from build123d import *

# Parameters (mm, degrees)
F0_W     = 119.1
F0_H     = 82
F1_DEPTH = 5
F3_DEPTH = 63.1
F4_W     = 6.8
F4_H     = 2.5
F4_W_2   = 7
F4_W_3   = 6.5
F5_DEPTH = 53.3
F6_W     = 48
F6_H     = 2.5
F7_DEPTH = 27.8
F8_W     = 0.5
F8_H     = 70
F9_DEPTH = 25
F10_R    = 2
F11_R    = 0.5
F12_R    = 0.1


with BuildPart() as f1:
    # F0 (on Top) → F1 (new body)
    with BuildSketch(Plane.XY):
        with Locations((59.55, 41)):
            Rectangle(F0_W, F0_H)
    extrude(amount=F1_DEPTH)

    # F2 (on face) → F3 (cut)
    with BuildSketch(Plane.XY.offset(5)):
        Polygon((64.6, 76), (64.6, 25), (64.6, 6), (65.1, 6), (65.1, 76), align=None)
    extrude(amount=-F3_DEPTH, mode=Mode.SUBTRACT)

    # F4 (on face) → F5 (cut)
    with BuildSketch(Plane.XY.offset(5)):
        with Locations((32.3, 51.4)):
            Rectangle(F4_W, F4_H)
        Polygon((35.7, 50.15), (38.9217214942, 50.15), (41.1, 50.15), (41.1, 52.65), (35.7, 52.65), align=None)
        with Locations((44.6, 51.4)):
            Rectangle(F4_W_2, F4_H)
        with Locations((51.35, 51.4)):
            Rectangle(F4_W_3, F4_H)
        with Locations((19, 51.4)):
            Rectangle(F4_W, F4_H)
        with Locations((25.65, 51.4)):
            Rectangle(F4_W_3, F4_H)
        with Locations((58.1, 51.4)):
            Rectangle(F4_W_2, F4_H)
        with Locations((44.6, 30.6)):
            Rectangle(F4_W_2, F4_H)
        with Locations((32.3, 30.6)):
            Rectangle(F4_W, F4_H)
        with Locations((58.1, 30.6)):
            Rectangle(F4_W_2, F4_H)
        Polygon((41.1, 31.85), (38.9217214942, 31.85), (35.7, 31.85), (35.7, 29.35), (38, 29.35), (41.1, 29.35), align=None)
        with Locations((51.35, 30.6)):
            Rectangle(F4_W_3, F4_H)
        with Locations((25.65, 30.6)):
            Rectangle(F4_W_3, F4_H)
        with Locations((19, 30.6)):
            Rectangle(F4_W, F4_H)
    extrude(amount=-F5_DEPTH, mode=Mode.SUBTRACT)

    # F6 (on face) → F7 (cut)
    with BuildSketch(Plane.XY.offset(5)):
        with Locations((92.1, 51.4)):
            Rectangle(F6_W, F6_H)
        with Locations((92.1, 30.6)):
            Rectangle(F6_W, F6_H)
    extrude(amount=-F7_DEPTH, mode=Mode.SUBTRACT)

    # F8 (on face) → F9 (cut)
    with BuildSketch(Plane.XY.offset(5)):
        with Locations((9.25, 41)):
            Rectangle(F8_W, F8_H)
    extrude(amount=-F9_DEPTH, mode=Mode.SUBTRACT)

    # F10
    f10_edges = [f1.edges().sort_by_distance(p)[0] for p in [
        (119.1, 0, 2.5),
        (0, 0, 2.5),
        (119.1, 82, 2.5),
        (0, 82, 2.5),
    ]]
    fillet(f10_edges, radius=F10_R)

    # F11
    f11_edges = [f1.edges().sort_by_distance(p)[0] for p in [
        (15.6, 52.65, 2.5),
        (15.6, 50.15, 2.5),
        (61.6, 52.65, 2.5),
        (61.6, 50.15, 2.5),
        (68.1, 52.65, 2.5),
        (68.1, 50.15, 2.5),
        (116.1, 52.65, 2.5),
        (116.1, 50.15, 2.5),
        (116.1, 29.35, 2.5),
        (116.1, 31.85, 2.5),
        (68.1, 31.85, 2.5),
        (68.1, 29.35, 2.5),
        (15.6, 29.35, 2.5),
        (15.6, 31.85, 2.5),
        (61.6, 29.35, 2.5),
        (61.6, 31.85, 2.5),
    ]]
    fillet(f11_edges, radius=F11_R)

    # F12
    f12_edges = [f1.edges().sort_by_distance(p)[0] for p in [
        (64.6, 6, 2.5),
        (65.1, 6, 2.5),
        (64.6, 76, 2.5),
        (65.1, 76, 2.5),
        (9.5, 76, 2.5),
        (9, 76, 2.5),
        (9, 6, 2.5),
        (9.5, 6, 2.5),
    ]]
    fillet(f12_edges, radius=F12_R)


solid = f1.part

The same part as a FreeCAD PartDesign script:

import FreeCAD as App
import Part
import Sketcher
Q = App.Units.Quantity


def edges_at(feature, points):
    """Names of the edges that pass closest to the given points."""
    edges = feature.Shape.Edges
    near = lambda p: min(range(len(edges)), key=lambda i: edges[i].distToShape(Part.Vertex(*p))[0])
    return sorted({f"Edge{near(p) + 1}" for p in points})

doc = App.newDocument("Part")
body = doc.addObject("PartDesign::Body", "Body")

# Sketch on XY plane
sketch1 = body.newObject("Sketcher::SketchObject", "Sketch")
sketch1.AttachmentSupport = (doc.getObject("XY_Plane"), [""])
sketch1.MapMode = "FlatFace"
sketch1.addGeometry(Part.LineSegment(App.Vector(0, 82, 0), App.Vector(0, 0, 0)), False)
sketch1.addGeometry(Part.LineSegment(App.Vector(0, 0, 0), App.Vector(119.1, 0, 0)), False)
sketch1.addGeometry(Part.LineSegment(App.Vector(119.1, 0, 0), App.Vector(119.1, 82, 0)), False)
sketch1.addGeometry(Part.LineSegment(App.Vector(119.1, 82, 0), App.Vector(0, 82, 0)), False)
sketch1.addConstraint(Sketcher.Constraint("Coincident", 0, 2, 1, 1))
sketch1.addConstraint(Sketcher.Constraint("Coincident", 1, 2, 2, 1))
sketch1.addConstraint(Sketcher.Constraint("Coincident", 2, 2, 3, 1))
sketch1.addConstraint(Sketcher.Constraint("Coincident", 3, 2, 0, 1))
sketch1.addConstraint(Sketcher.Constraint("Vertical", 0))
sketch1.addConstraint(Sketcher.Constraint("Horizontal", 1))
sketch1.addConstraint(Sketcher.Constraint("Vertical", 2))
sketch1.addConstraint(Sketcher.Constraint("Horizontal", 3))
sketch1.addConstraint(Sketcher.Constraint("Coincident", 0, 2, -1, 1))
sketch1.addConstraint(Sketcher.Constraint("DistanceY", 0, 2, 0, 1, Q("82 mm")))
sketch1.addConstraint(Sketcher.Constraint("DistanceX", 1, 1, 1, 2, Q("119.1 mm")))
pad1 = body.newObject("PartDesign::Pad", "Pad")
pad1.Profile = sketch1
pad1.Length = 5

# Sketch on XY plane
sketch2 = body.newObject("Sketcher::SketchObject", "Sketch001")
sketch2.AttachmentSupport = (doc.getObject("XY_Plane"), [""])
sketch2.MapMode = "FlatFace"
sketch2.AttachmentOffset = App.Placement(App.Vector(0, 0, 5), App.Rotation())
sketch2.addGeometry(Part.LineSegment(App.Vector(64.6, 76, 0), App.Vector(64.6, 6, 0)), False)
sketch2.addGeometry(Part.LineSegment(App.Vector(64.6, 6, 0), App.Vector(65.1, 6, 0)), False)
sketch2.addGeometry(Part.LineSegment(App.Vector(65.1, 6, 0), App.Vector(65.1, 76, 0)), False)
sketch2.addGeometry(Part.LineSegment(App.Vector(65.1, 76, 0), App.Vector(64.6, 76, 0)), False)
sketch2.addConstraint(Sketcher.Constraint("Coincident", 0, 2, 1, 1))
sketch2.addConstraint(Sketcher.Constraint("Coincident", 1, 2, 2, 1))
sketch2.addConstraint(Sketcher.Constraint("Coincident", 2, 2, 3, 1))
sketch2.addConstraint(Sketcher.Constraint("Coincident", 3, 2, 0, 1))
sketch2.addConstraint(Sketcher.Constraint("Vertical", 0))
sketch2.addConstraint(Sketcher.Constraint("Horizontal", 1))
sketch2.addConstraint(Sketcher.Constraint("Vertical", 2))
sketch2.addConstraint(Sketcher.Constraint("Horizontal", 3))
sketch2.addConstraint(Sketcher.Constraint("DistanceY", 0, 2, 0, 1, Q("70 mm")))
sketch2.addConstraint(Sketcher.Constraint("DistanceX", 1, 1, 1, 2, Q("0.5 mm")))
sketch2.addConstraint(Sketcher.Constraint("DistanceY", -1, 1, 0, 2, Q("6 mm")))
sketch2.addConstraint(Sketcher.Constraint("DistanceX", -1, 1, 0, 2, Q("64.6 mm")))
pocket1 = body.newObject("PartDesign::Pocket", "Pocket")
pocket1.Profile = sketch2
pocket1.Length = 63.1

# Sketch on XY plane
sketch3 = body.newObject("Sketcher::SketchObject", "Sketch002")
sketch3.AttachmentSupport = (doc.getObject("XY_Plane"), [""])
sketch3.MapMode = "FlatFace"
sketch3.AttachmentOffset = App.Placement(App.Vector(0, 0, 5), App.Rotation())
sketch3.addGeometry(Part.LineSegment(App.Vector(15.6, 52.65, 0), App.Vector(15.6, 50.15, 0)), False)
sketch3.addGeometry(Part.LineSegment(App.Vector(15.6, 50.15, 0), App.Vector(61.6, 50.15, 0)), False)
sketch3.addGeometry(Part.LineSegment(App.Vector(61.6, 50.15, 0), App.Vector(61.6, 52.65, 0)), False)
sketch3.addGeometry(Part.LineSegment(App.Vector(61.6, 52.65, 0), App.Vector(15.6, 52.65, 0)), False)
sketch3.addGeometry(Part.LineSegment(App.Vector(61.6, 29.35, 0), App.Vector(61.6, 31.85, 0)), False)
sketch3.addGeometry(Part.LineSegment(App.Vector(61.6, 31.85, 0), App.Vector(15.6, 31.85, 0)), False)
sketch3.addGeometry(Part.LineSegment(App.Vector(15.6, 31.85, 0), App.Vector(15.6, 29.35, 0)), False)
sketch3.addGeometry(Part.LineSegment(App.Vector(15.6, 29.35, 0), App.Vector(61.6, 29.35, 0)), False)
sketch3.addConstraint(Sketcher.Constraint("Coincident", 0, 2, 1, 1))
sketch3.addConstraint(Sketcher.Constraint("Coincident", 1, 2, 2, 1))
sketch3.addConstraint(Sketcher.Constraint("Coincident", 2, 2, 3, 1))
sketch3.addConstraint(Sketcher.Constraint("Coincident", 3, 2, 0, 1))
sketch3.addConstraint(Sketcher.Constraint("Coincident", 4, 2, 5, 1))
sketch3.addConstraint(Sketcher.Constraint("Coincident", 5, 2, 6, 1))
sketch3.addConstraint(Sketcher.Constraint("Coincident", 6, 2, 7, 1))
sketch3.addConstraint(Sketcher.Constraint("Coincident", 7, 2, 4, 1))
sketch3.addConstraint(Sketcher.Constraint("Vertical", 0))
sketch3.addConstraint(Sketcher.Constraint("Horizontal", 1))
sketch3.addConstraint(Sketcher.Constraint("Vertical", 2))
sketch3.addConstraint(Sketcher.Constraint("Horizontal", 3))
sketch3.addConstraint(Sketcher.Constraint("Vertical", 4))
sketch3.addConstraint(Sketcher.Constraint("Horizontal", 5))
sketch3.addConstraint(Sketcher.Constraint("Vertical", 6))
sketch3.addConstraint(Sketcher.Constraint("Horizontal", 7))
sketch3.addConstraint(Sketcher.Constraint("Vertical", 2, 2, 4, 2))
sketch3.addConstraint(Sketcher.Constraint("Vertical", 3, 2, 5, 2))
sketch3.addConstraint(Sketcher.Constraint("Equal", 2, 4))
sketch3.addConstraint(Sketcher.Constraint("DistanceX", 1, 1, 1, 2, Q("46 mm")))
sketch3.addConstraint(Sketcher.Constraint("DistanceY", 0, 2, 0, 1, Q("2.5 mm")))
sketch3.addConstraint(Sketcher.Constraint("DistanceX", -1, 1, 0, 2, Q("15.6 mm")))
sketch3.addConstraint(Sketcher.Constraint("DistanceY", 4, 2, 1, 2, Q("18.3 mm")))
sketch3.addConstraint(Sketcher.Constraint("DistanceY", -1, 1, 0, 2, Q("50.15 mm")))
pocket2 = body.newObject("PartDesign::Pocket", "Pocket001")
pocket2.Profile = sketch3
pocket2.Length = 53.3

# Sketch on XY plane
sketch4 = body.newObject("Sketcher::SketchObject", "Sketch003")
sketch4.AttachmentSupport = (doc.getObject("XY_Plane"), [""])
sketch4.MapMode = "FlatFace"
sketch4.AttachmentOffset = App.Placement(App.Vector(0, 0, 5), App.Rotation())
sketch4.addGeometry(Part.LineSegment(App.Vector(68.1, 52.65, 0), App.Vector(68.1, 50.15, 0)), False)
sketch4.addGeometry(Part.LineSegment(App.Vector(68.1, 50.15, 0), App.Vector(116.1, 50.15, 0)), False)
sketch4.addGeometry(Part.LineSegment(App.Vector(116.1, 50.15, 0), App.Vector(116.1, 52.65, 0)), False)
sketch4.addGeometry(Part.LineSegment(App.Vector(116.1, 52.65, 0), App.Vector(68.1, 52.65, 0)), False)
sketch4.addGeometry(Part.LineSegment(App.Vector(68.1, 31.85, 0), App.Vector(68.1, 29.35, 0)), False)
sketch4.addGeometry(Part.LineSegment(App.Vector(68.1, 29.35, 0), App.Vector(116.1, 29.35, 0)), False)
sketch4.addGeometry(Part.LineSegment(App.Vector(116.1, 29.35, 0), App.Vector(116.1, 31.85, 0)), False)
sketch4.addGeometry(Part.LineSegment(App.Vector(116.1, 31.85, 0), App.Vector(68.1, 31.85, 0)), False)
sketch4.addConstraint(Sketcher.Constraint("Coincident", 0, 2, 1, 1))
sketch4.addConstraint(Sketcher.Constraint("Coincident", 1, 2, 2, 1))
sketch4.addConstraint(Sketcher.Constraint("Coincident", 2, 2, 3, 1))
sketch4.addConstraint(Sketcher.Constraint("Coincident", 3, 2, 0, 1))
sketch4.addConstraint(Sketcher.Constraint("Coincident", 4, 2, 5, 1))
sketch4.addConstraint(Sketcher.Constraint("Coincident", 5, 2, 6, 1))
sketch4.addConstraint(Sketcher.Constraint("Coincident", 6, 2, 7, 1))
sketch4.addConstraint(Sketcher.Constraint("Coincident", 7, 2, 4, 1))
sketch4.addConstraint(Sketcher.Constraint("Vertical", 0))
sketch4.addConstraint(Sketcher.Constraint("Horizontal", 1))
sketch4.addConstraint(Sketcher.Constraint("Vertical", 2))
sketch4.addConstraint(Sketcher.Constraint("Horizontal", 3))
sketch4.addConstraint(Sketcher.Constraint("Vertical", 4))
sketch4.addConstraint(Sketcher.Constraint("Horizontal", 5))
sketch4.addConstraint(Sketcher.Constraint("Vertical", 6))
sketch4.addConstraint(Sketcher.Constraint("Horizontal", 7))
sketch4.addConstraint(Sketcher.Constraint("Vertical", 3, 2, 4, 2))
sketch4.addConstraint(Sketcher.Constraint("Vertical", 2, 2, 5, 2))
sketch4.addConstraint(Sketcher.Constraint("Equal", 2, 4))
sketch4.addConstraint(Sketcher.Constraint("DistanceX", 1, 1, 1, 2, Q("48 mm")))
sketch4.addConstraint(Sketcher.Constraint("DistanceY", 0, 2, 0, 1, Q("2.5 mm")))
sketch4.addConstraint(Sketcher.Constraint("DistanceX", -1, 1, 0, 2, Q("68.1 mm")))
sketch4.addConstraint(Sketcher.Constraint("DistanceY", 4, 2, 0, 2, Q("20.8 mm")))
sketch4.addConstraint(Sketcher.Constraint("DistanceY", -1, 1, 0, 2, Q("50.15 mm")))
pocket3 = body.newObject("PartDesign::Pocket", "Pocket002")
pocket3.Profile = sketch4
pocket3.Length = 27.8

# Sketch on XY plane
sketch5 = body.newObject("Sketcher::SketchObject", "Sketch004")
sketch5.AttachmentSupport = (doc.getObject("XY_Plane"), [""])
sketch5.MapMode = "FlatFace"
sketch5.AttachmentOffset = App.Placement(App.Vector(0, 0, 5), App.Rotation())
sketch5.addGeometry(Part.LineSegment(App.Vector(9, 76, 0), App.Vector(9, 6, 0)), False)
sketch5.addGeometry(Part.LineSegment(App.Vector(9, 6, 0), App.Vector(9.5, 6, 0)), False)
sketch5.addGeometry(Part.LineSegment(App.Vector(9.5, 6, 0), App.Vector(9.5, 76, 0)), False)
sketch5.addGeometry(Part.LineSegment(App.Vector(9.5, 76, 0), App.Vector(9, 76, 0)), False)
sketch5.addConstraint(Sketcher.Constraint("Coincident", 0, 2, 1, 1))
sketch5.addConstraint(Sketcher.Constraint("Coincident", 1, 2, 2, 1))
sketch5.addConstraint(Sketcher.Constraint("Coincident", 2, 2, 3, 1))
sketch5.addConstraint(Sketcher.Constraint("Coincident", 3, 2, 0, 1))
sketch5.addConstraint(Sketcher.Constraint("Vertical", 0))
sketch5.addConstraint(Sketcher.Constraint("Horizontal", 1))
sketch5.addConstraint(Sketcher.Constraint("Vertical", 2))
sketch5.addConstraint(Sketcher.Constraint("Horizontal", 3))
sketch5.addConstraint(Sketcher.Constraint("DistanceY", 0, 2, 0, 1, Q("70 mm")))
sketch5.addConstraint(Sketcher.Constraint("DistanceX", 1, 1, 1, 2, Q("0.5 mm")))
sketch5.addConstraint(Sketcher.Constraint("DistanceX", -1, 1, 0, 2, Q("9 mm")))
sketch5.addConstraint(Sketcher.Constraint("DistanceY", -1, 1, 0, 2, Q("6 mm")))
pocket4 = body.newObject("PartDesign::Pocket", "Pocket003")
pocket4.Profile = sketch5
pocket4.Length = 25
doc.recompute()

fillet = body.newObject("PartDesign::Fillet", "Fillet")
fillet.Base = (pocket4, edges_at(pocket4, [
    (119.1, 0, 2.5),
    (0, 0, 2.5),
    (119.1, 82, 2.5),
    (0, 82, 2.5),
]))
fillet.Radius = 2
doc.recompute()

fillet2 = body.newObject("PartDesign::Fillet", "Fillet001")
fillet2.Base = (fillet, edges_at(fillet, [
    (15.6, 52.65, 2.5),
    (15.6, 50.15, 2.5),
    (61.6, 52.65, 2.5),
    (61.6, 50.15, 2.5),
    (68.1, 52.65, 2.5),
    (68.1, 50.15, 2.5),
    (116.1, 52.65, 2.5),
    (116.1, 50.15, 2.5),
    (116.1, 29.35, 2.5),
    (116.1, 31.85, 2.5),
    (68.1, 31.85, 2.5),
    (68.1, 29.35, 2.5),
    (15.6, 29.35, 2.5),
    (15.6, 31.85, 2.5),
    (61.6, 29.35, 2.5),
    (61.6, 31.85, 2.5),
]))
fillet2.Radius = 0.5
doc.recompute()

fillet3 = body.newObject("PartDesign::Fillet", "Fillet002")
fillet3.Base = (fillet2, edges_at(fillet2, [
    (64.6, 6, 2.5),
    (65.1, 6, 2.5),
    (64.6, 76, 2.5),
    (65.1, 76, 2.5),
    (9.5, 76, 2.5),
    (9, 76, 2.5),
    (9, 6, 2.5),
    (9.5, 6, 2.5),
]))
fillet3.Radius = 0.1

doc.recompute()
